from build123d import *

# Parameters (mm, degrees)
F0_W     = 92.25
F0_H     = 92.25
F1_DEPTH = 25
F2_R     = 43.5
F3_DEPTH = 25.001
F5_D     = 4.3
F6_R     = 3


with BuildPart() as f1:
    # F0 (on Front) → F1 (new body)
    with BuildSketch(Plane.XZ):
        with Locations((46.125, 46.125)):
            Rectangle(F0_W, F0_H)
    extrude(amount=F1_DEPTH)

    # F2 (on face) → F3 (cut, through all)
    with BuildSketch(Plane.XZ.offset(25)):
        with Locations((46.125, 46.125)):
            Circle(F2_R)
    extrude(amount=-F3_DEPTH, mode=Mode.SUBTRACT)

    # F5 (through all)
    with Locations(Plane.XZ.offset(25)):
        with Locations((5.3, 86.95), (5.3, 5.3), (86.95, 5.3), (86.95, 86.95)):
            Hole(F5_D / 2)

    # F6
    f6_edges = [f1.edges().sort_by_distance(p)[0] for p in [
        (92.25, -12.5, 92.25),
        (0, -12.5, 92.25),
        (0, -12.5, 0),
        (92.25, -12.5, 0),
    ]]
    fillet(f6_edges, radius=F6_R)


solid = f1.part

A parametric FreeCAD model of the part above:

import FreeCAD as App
import Part
import Sketcher

V = App.Vector
Q = App.Units.Quantity


def edges_at(feature, points):
    """Names of the edges that pass closest to the given points."""
    edges = feature.Shape.Edges
    near = lambda p: min(range(len(edges)), key=lambda i: edges[i].distToShape(Part.Vertex(*p))[0])
    return sorted({f"Edge{near(p) + 1}" for p in points})

doc = App.newDocument("Part")
body = doc.addObject("PartDesign::Body", "Body")

# Sketch on XZ plane
sketch1 = doc.addObject("Sketcher::SketchObject", "Sketch")
body.addObject(sketch1)
sketch1.AttachmentSupport = (doc.XZ_Plane, [""])
sketch1.MapMode = "FlatFace"
sketch1.addGeometry([
    Part.LineSegment(V(0, 92, 0), V(0, 0, 0)),
    Part.LineSegment(V(0, 0, 0), V(92, 0, 0)),
    Part.LineSegment(V(92, 0, 0), V(92, 92, 0)),
    Part.LineSegment(V(92, 92, 0), V(0, 92, 0)),
], False)
sketch1.addConstraint([
    Sketcher.Constraint("Coincident", 0, 2, 1, 1),
    Sketcher.Constraint("Coincident", 1, 2, 2, 1),
    Sketcher.Constraint("Coincident", 2, 2, 3, 1),
    Sketcher.Constraint("Coincident", 3, 2, 0, 1),
    Sketcher.Constraint("Vertical", 0),
    Sketcher.Constraint("Horizontal", 1),
    Sketcher.Constraint("Vertical", 2),
    Sketcher.Constraint("Horizontal", 3),
    Sketcher.Constraint("Coincident", 0, 2, -1, 1),
    Sketcher.Constraint("Equal", 3, 0),
    Sketcher.Constraint("DistanceX", 1, 1, 1, 2, Q("92.25 mm")),
])
pad1 = doc.addObject("PartDesign::Pad", "Pad")
body.addObject(pad1)
pad1.Profile = sketch1
pad1.Length = 25

# Sketch on XZ plane
sketch2 = doc.addObject("Sketcher::SketchObject", "Sketch001")
body.addObject(sketch2)
sketch2.AttachmentSupport = (doc.XZ_Plane, [""])
sketch2.MapMode = "FlatFace"
sketch2.AttachmentOffset = App.Placement(V(0, 0, 25), App.Rotation())
sketch2.addGeometry(Part.Circle(V(46, 46, 0), V(0, 0, 1), 44), False)
sketch2.addConstraint([
    Sketcher.Constraint("Diameter", 0, Q("87 mm")),
    Sketcher.Constraint("DistanceX", -1, 1, 0, 3, Q("46.125 mm")),
    Sketcher.Constraint("DistanceY", -1, 1, 0, 3, Q("46.125 mm")),
])
pocket1 = doc.addObject("PartDesign::Pocket", "Pocket")
body.addObject(pocket1)
pocket1.Profile = sketch2
pocket1.Type = "ThroughAll"

# Sketch on XZ plane
sketch3 = doc.addObject("Sketcher::SketchObject", "Sketch002")
body.addObject(sketch3)
sketch3.AttachmentSupport = (doc.XZ_Plane, [""])
sketch3.MapMode = "FlatFace"
sketch3.AttachmentOffset = App.Placement(V(0, 0, 25), App.Rotation())
sketch3.addGeometry([
    Part.Circle(V(5.3, 87, 0), V(0, 0, 1), 2.1),
    Part.Circle(V(5.3, 5.3, 0), V(0, 0, 1), 2.1),
    Part.Circle(V(87, 5.3, 0), V(0, 0, 1), 2.1),
    Part.Circle(V(87, 87, 0), V(0, 0, 1), 2.1),
], False)
sketch3.addConstraint([
    Sketcher.Constraint("Equal", 0, 1),
    Sketcher.Constraint("Equal", 1, 2),
    Sketcher.Constraint("Equal", 2, 3),
    Sketcher.Constraint("Horizontal", 1, 3, 2, 3),
    Sketcher.Constraint("Horizontal", 0, 3, 3, 3),
    Sketcher.Constraint("Vertical", 0, 3, 1, 3),
    Sketcher.Constraint("Vertical", 2, 3, 3, 3),
    Sketcher.Constraint("Diameter", 0, Q("4.3 mm")),
    Sketcher.Constraint("DistanceX", -1, 1, 0, 3, Q("5.3 mm")),
    Sketcher.Constraint("DistanceY", -1, 1, 1, 3, Q("5.3 mm")),
    Sketcher.Constraint("DistanceY", -1, 1, 0, 3, Q("86.95 mm")),
    Sketcher.Constraint("DistanceX", -1, 1, 2, 3, Q("86.95 mm")),
])
doc.recompute()
hole = doc.addObject("PartDesign::Hole", "Hole")
body.addObject(hole)
hole.Profile = sketch3
hole.ThreadType = "None"
hole.Diameter = 4.3
hole.DepthType = "ThroughAll"
doc.recompute()

fillet = doc.addObject("PartDesign::Fillet", "Fillet")
body.addObject(fillet)
fillet.Base = (hole, edges_at(hole, [
    (92.25, -12.5, 92.25),
    (0, -12.5, 92.25),
    (0, -12.5, 0),
    (92.25, -12.5, 0),
]))
fillet.Radius = 3

doc.recompute()
